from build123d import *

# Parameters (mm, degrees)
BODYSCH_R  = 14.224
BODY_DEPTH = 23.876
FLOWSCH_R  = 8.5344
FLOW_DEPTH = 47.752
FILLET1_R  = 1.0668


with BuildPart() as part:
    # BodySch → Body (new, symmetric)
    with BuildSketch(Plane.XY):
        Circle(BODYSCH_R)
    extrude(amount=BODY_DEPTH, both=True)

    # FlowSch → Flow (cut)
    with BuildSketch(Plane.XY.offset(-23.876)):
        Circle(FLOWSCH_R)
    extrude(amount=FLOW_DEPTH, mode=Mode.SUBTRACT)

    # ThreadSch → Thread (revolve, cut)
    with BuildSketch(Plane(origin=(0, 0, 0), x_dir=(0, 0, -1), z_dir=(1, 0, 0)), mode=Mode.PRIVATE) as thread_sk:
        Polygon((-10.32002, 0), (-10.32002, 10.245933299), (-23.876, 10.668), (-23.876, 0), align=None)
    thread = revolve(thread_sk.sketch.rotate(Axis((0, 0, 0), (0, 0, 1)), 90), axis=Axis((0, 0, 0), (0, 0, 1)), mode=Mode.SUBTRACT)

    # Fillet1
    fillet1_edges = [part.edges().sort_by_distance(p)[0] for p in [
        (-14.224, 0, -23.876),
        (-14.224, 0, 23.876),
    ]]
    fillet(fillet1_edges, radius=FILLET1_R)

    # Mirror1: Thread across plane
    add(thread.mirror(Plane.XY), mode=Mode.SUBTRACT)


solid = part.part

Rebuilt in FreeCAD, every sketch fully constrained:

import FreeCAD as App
import Part
import Sketcher
Q = App.Units.Quantity


def edges_at(feature, points):
    """Names of the edges that pass closest to the given points."""
    edges = feature.Shape.Edges
    near = lambda p: min(range(len(edges)), key=lambda i: edges[i].distToShape(Part.Vertex(*p))[0])
    return sorted({f"Edge{near(p) + 1}" for p in points})


def add_polygon(sketch, points):
    """Adds a closed chain of lines whose ends are joined by coincident constraints."""
    first, n = sketch.GeometryCount, len(points)
    for a, b in zip(points, points[1:] + points[:1]):
        sketch.addGeometry(Part.LineSegment(App.Vector(*a, 0), App.Vector(*b, 0)), False)
    for i in range(n):
        sketch.addConstraint(Sketcher.Constraint("Coincident", first + i, 2, first + (i + 1) % n, 1))

doc = App.newDocument("Part")
body = doc.addObject("PartDesign::Body", "Body")

# Sketch on XY plane
sketch1 = body.newObject("Sketcher::SketchObject", "Sketch")
sketch1.AttachmentSupport = (doc.getObject("XY_Plane"), [""])
sketch1.MapMode = "FlatFace"
sketch1.addGeometry(Part.Circle(App.Vector(0, 0, 0), App.Vector(0, 0, 1), 14.224), False)
sketch1.addConstraint(Sketcher.Constraint("Coincident", 0, 3, -1, 1))
sketch1.addConstraint(Sketcher.Constraint("Diameter", 0, Q("1.12 in")))
pad1 = body.newObject("PartDesign::Pad", "Pad")
pad1.Profile = sketch1
pad1.Length = Q("1.88 in")
pad1.Midplane = True

# Sketch on XY plane
sketch2 = body.newObject("Sketcher::SketchObject", "Sketch001")
sketch2.AttachmentSupport = (doc.getObject("XY_Plane"), [""])
sketch2.MapMode = "FlatFace"
sketch2.AttachmentOffset = App.Placement(App.Vector(0, 0, -0.94 * 25.4), App.Rotation())
sketch2.addGeometry(Part.Circle(App.Vector(0, 0, 0), App.Vector(0, 0, 1), 8.5344), False)
sketch2.addConstraint(Sketcher.Constraint("Coincident", 0, 3, -1, 1))
sketch2.addConstraint(Sketcher.Constraint("Diameter", 0, Q("0.672 in")))
pocket1 = body.newObject("PartDesign::Pocket", "Pocket")
pocket1.Profile = sketch2
pocket1.Length = Q("1.88 in")
pocket1.Reversed = True

# Sketch on YZ plane
sketch3 = body.newObject("Sketcher::SketchObject", "Sketch002")
sketch3.AttachmentSupport = (doc.getObject("YZ_Plane"), [""])
sketch3.MapMode = "FlatFace"
add_polygon(sketch3, [(0, 10.32002), (10.245933, 10.32002), (10.668, 23.876), (0, 23.876)])  # lines 0-3
sketch3.addConstraint(Sketcher.Constraint("Horizontal", 0))
sketch3.addConstraint(Sketcher.Constraint("Horizontal", 2))
sketch3.addConstraint(Sketcher.Constraint("Vertical", 3))
sketch3.addConstraint(Sketcher.Constraint("PointOnObject", 2, 2, -2))
sketch3.addConstraint(Sketcher.Constraint("DistanceX", 2, 2, 2, 1, Q("0.42 in")))
sketch3.addConstraint(Sketcher.Constraint("DistanceY", -1, 1, 1, 2, Q("0.94 in")))
sketch3.addConstraint(Sketcher.Constraint("DistanceY", 3, 2, 3, 1, Q("0.5337 in")))
sketch3.addConstraint(Sketcher.Constraint("Distance", 1, Q("13.562549 mm")))
groove = body.newObject("PartDesign::Groove", "Groove")
groove.Profile = sketch3
groove.ReferenceAxis = (sketch3, ["V_Axis"])
groove.Angle = 360
doc.recompute()

fillet = body.newObject("PartDesign::Fillet", "Fillet")
fillet.Base = (groove, edges_at(groove, [(-14.224, 0, -23.876), (-14.224, 0, 23.876)]))
fillet.Radius = Q("0.042 in")
doc.recompute()

mirrored = body.newObject("PartDesign::Mirrored", "Mirrored")
mirrored.Originals = [groove]
mirrored.MirrorPlane = (doc.getObject("XY_Plane"), [""])
body.Tip = mirrored

doc.recompute()
